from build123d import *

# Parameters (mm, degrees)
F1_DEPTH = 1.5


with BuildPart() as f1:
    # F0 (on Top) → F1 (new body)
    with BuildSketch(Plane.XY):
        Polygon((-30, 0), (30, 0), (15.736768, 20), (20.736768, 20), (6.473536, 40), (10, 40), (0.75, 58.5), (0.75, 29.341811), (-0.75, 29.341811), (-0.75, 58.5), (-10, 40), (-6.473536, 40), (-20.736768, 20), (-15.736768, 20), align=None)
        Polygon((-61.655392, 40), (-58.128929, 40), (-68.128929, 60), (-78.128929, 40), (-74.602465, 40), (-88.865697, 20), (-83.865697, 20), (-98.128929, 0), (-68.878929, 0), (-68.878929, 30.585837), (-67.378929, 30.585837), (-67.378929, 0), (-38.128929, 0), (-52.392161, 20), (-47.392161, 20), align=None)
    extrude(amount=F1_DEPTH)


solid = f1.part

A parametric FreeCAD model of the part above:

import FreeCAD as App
import Part
import Sketcher

V = App.Vector
Q = App.Units.Quantity

doc = App.newDocument("Part")
params = doc.addObject("Spreadsheet::Sheet", "Params")
for row, (alias, value) in enumerate([
    ("sketch1_width", "60 mm"),
    ("sketch1_width2", "5 mm"),
    ("sketch1_width3", "1.5 mm"),
    ("pad1_length", "1.5 mm"),
], start=1):
    params.set(f"A{row}", alias)
    params.set(f"B{row}", "=" + value)
    params.setAlias(f"B{row}", alias)

body = doc.addObject("PartDesign::Body", "Body")
body.AllowCompound = True

sketch1 = body.newObject("Sketcher::SketchObject", "Sketch")
sketch1.AttachmentSupport = (doc.getObject("XY_Plane"), [""])
sketch1.MapMode = "FlatFace"
sketch1.addGeometry([
    Part.LineSegment(V(-30, 0, 0), V(30, 0, 0)),
    Part.LineSegment(V(30, 0, 0), V(15.736768, 20, 0)),
    Part.LineSegment(V(15.736768, 20, 0), V(20.736768, 20, 0)),
    Part.LineSegment(V(20.736768, 20, 0), V(6.473536, 40, 0)),
    Part.LineSegment(V(6.473536, 40, 0), V(10, 40, 0)),
    Part.LineSegment(V(10, 40, 0), V(0.75, 58.5, 0)),
    Part.LineSegment(V(0.75, 58.5, 0), V(0.75, 29.341811, 0)),
    Part.LineSegment(V(0.75, 29.341811, 0), V(-0.75, 29.341811, 0)),
    Part.LineSegment(V(-0.75, 29.341811, 0), V(-0.75, 58.5, 0)),
    Part.LineSegment(V(-0.75, 58.5, 0), V(-10, 40, 0)),
    Part.LineSegment(V(-10, 40, 0), V(-6.473536, 40, 0)),
    Part.LineSegment(V(-6.473536, 40, 0), V(-20.736768, 20, 0)),
    Part.LineSegment(V(-20.736768, 20, 0), V(-15.736768, 20, 0)),
    Part.LineSegment(V(-15.736768, 20, 0), V(-30, 0, 0)),
    Part.LineSegment(V(-61.655392, 40, 0), V(-58.128929, 40, 0)),
    Part.LineSegment(V(-58.128929, 40, 0), V(-68.128929, 60, 0)),
    Part.LineSegment(V(-68.128929, 60, 0), V(-78.128929, 40, 0)),
    Part.LineSegment(V(-78.128929, 40, 0), V(-74.602465, 40, 0)),
    Part.LineSegment(V(-74.602465, 40, 0), V(-88.865697, 20, 0)),
    Part.LineSegment(V(-88.865697, 20, 0), V(-83.865697, 20, 0)),
    Part.LineSegment(V(-83.865697, 20, 0), V(-98.128929, 0, 0)),
    Part.LineSegment(V(-98.128929, 0, 0), V(-68.878929, 0, 0)),
    Part.LineSegment(V(-68.878929, 0, 0), V(-68.878929, 30.585837, 0)),
    Part.LineSegment(V(-68.878929, 30.585837, 0), V(-67.378929, 30.585837, 0)),
    Part.LineSegment(V(-67.378929, 30.585837, 0), V(-67.378929, 0, 0)),
    Part.LineSegment(V(-67.378929, 0, 0), V(-38.128929, 0, 0)),
    Part.LineSegment(V(-38.128929, 0, 0), V(-52.392161, 20, 0)),
    Part.LineSegment(V(-52.392161, 20, 0), V(-47.392161, 20, 0)),
    Part.LineSegment(V(-47.392161, 20, 0), V(-61.655392, 40, 0)),
], False)
sketch1.addConstraint([
    Sketcher.Constraint("Coincident", 0, 2, 1, 1),
    Sketcher.Constraint("Coincident", 1, 2, 2, 1),
    Sketcher.Constraint("Coincident", 2, 2, 3, 1),
    Sketcher.Constraint("Coincident", 3, 2, 4, 1),
    Sketcher.Constraint("Coincident", 4, 2, 5, 1),
    Sketcher.Constraint("Coincident", 5, 2, 6, 1),
    Sketcher.Constraint("Coincident", 6, 2, 7, 1),
    Sketcher.Constraint("Coincident", 7, 2, 8, 1),
    Sketcher.Constraint("Coincident", 8, 2, 9, 1),
    Sketcher.Constraint("Coincident", 9, 2, 10, 1),
    Sketcher.Constraint("Coincident", 10, 2, 11, 1),
    Sketcher.Constraint("Coincident", 11, 2, 12, 1),
    Sketcher.Constraint("Coincident", 12, 2, 13, 1),
    Sketcher.Constraint("Coincident", 13, 2, 0, 1),
    Sketcher.Constraint("Coincident", 14, 2, 15, 1),
    Sketcher.Constraint("Coincident", 15, 2, 16, 1),
    Sketcher.Constraint("Coincident", 16, 2, 17, 1),
    Sketcher.Constraint("Coincident", 17, 2, 18, 1),
    Sketcher.Constraint("Coincident", 18, 2, 19, 1),
    Sketcher.Constraint("Coincident", 19, 2, 20, 1),
    Sketcher.Constraint("Coincident", 20, 2, 21, 1),
    Sketcher.Constraint("Coincident", 21, 2, 22, 1),
    Sketcher.Constraint("Coincident", 22, 2, 23, 1),
    Sketcher.Constraint("Coincident", 23, 2, 24, 1),
    Sketcher.Constraint("Coincident", 24, 2, 25, 1),
    Sketcher.Constraint("Coincident", 25, 2, 26, 1),
    Sketcher.Constraint("Coincident", 26, 2, 27, 1),
    Sketcher.Constraint("Coincident", 27, 2, 28, 1),
    Sketcher.Constraint("Coincident", 28, 2, 14, 1),
    Sketcher.Constraint("Horizontal", 0),
    Sketcher.Constraint("Horizontal", 2),
    Sketcher.Constraint("Horizontal", 4),
    Sketcher.Constraint("Vertical", 6),
    Sketcher.Constraint("Horizontal", 7),
    Sketcher.Constraint("Vertical", 8),
    Sketcher.Constraint("Horizontal", 10),
    Sketcher.Constraint("Horizontal", 12),
    Sketcher.Constraint("Horizontal", 14),
    Sketcher.Constraint("Horizontal", 17),
    Sketcher.Constraint("Horizontal", 19),
    Sketcher.Constraint("Horizontal", 21),
    Sketcher.Constraint("Vertical", 22),
    Sketcher.Constraint("Horizontal", 23),
    Sketcher.Constraint("Vertical", 24),
    Sketcher.Constraint("Horizontal", 25),
    Sketcher.Constraint("Horizontal", 27),
    Sketcher.Constraint("Symmetric", 0, 2, 13, 2, -1, 1),
    Sketcher.Constraint("Symmetric", 5, 2, 8, 2, -2),
    Sketcher.Constraint("Symmetric", 4, 2, 9, 2, -2),
    Sketcher.Constraint("Symmetric", 2, 2, 11, 2, -2),
    Sketcher.Constraint("PointOnObject", 20, 2, -1),
    Sketcher.Constraint("PointOnObject", 24, 2, -1),
    Sketcher.Constraint("Parallel", 1, 3),
    Sketcher.Constraint("Parallel", 11, 13),
    Sketcher.Constraint("Parallel", 5, 15),
    Sketcher.Constraint("Parallel", 9, 16),
    Sketcher.Constraint("Parallel", 13, 18),
    Sketcher.Constraint("Parallel", 18, 20),
    Sketcher.Constraint("Parallel", 3, 26),
    Sketcher.Constraint("Parallel", 26, 28),
    Sketcher.Constraint("Horizontal", 10, 2, 14, 2),
    Sketcher.Constraint("Horizontal", 14, 2, 16, 2),
    Sketcher.Constraint("Horizontal", 12, 2, 18, 2),
    Sketcher.Constraint("Horizontal", 19, 2, 26, 2),
    Sketcher.Constraint("Equal", 4, 10),
    Sketcher.Constraint("Equal", 10, 14),
    Sketcher.Constraint("Equal", 14, 17),
    Sketcher.Constraint("Equal", 12, 19),
    Sketcher.Constraint("Equal", 7, 23),
    Sketcher.Constraint("Equal", 21, 25),
    Sketcher.Constraint("Equal", 19, 27),
    Sketcher.Constraint("Equal", 1, 3),
    Sketcher.Constraint("DistanceX", 0, 1, 0, 2, Q("60 mm")),
    Sketcher.Constraint("DistanceX", 2, 1, 2, 2, Q("5 mm")),
    Sketcher.Constraint("DistanceX", 7, 2, 7, 1, Q("1.5 mm")),
    Sketcher.Constraint("DistanceY", -1, 1, 1, 2, Q("20 mm")),
    Sketcher.Constraint("DistanceX", -1, 1, 4, 2, Q("10 mm")),
    Sketcher.Constraint("DistanceY", -1, 1, 15, 2, Q("60 mm")),
    Sketcher.Constraint("DistanceX", 15, 2, 14, 2, Q("10 mm")),
    Sketcher.Constraint("DistanceY", 6, 2, 6, 1, Q("29.158189 mm")),
    Sketcher.Constraint("Distance", 1, Q("24.565011 mm")),
    Sketcher.Constraint("DistanceY", 22, 1, 22, 2, Q("30.585837 mm")),
    Sketcher.Constraint("DistanceX", 14, 2, -1, 1, Q("58.128929 mm")),
])
sketch1.setExpression("Constraints[72]", "Params.sketch1_width")
sketch1.setExpression("Constraints[73]", "Params.sketch1_width2")
sketch1.setExpression("Constraints[74]", "Params.sketch1_width3")
pad1 = body.newObject("PartDesign::Pad", "Pad")
pad1.Profile = sketch1
pad1.setExpression("Length", "Params.pad1_length")

doc.recompute()
